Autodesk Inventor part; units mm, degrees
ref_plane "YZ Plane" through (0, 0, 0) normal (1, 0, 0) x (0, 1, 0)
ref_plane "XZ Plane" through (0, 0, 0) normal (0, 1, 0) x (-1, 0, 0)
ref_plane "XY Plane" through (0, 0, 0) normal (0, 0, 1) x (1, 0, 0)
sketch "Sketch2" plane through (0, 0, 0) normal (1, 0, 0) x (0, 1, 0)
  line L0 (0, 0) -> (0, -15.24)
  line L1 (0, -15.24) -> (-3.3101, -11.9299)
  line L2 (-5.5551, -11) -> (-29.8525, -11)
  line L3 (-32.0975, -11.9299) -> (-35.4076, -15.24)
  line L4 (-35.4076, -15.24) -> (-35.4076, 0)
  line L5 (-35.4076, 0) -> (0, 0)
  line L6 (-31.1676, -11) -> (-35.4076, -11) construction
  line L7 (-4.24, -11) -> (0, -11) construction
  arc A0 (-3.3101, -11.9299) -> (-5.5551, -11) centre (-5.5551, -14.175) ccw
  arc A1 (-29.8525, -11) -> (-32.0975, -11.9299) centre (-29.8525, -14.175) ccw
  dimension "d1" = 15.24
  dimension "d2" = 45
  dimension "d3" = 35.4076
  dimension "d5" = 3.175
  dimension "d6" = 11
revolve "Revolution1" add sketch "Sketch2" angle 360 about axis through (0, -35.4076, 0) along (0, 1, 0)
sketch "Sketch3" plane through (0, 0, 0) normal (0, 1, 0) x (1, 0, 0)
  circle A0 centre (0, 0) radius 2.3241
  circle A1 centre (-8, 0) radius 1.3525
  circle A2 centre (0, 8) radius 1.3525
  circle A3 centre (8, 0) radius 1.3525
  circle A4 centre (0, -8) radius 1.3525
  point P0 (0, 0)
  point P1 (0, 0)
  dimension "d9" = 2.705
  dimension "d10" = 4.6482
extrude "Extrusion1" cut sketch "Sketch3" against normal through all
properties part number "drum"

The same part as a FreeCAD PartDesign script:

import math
import FreeCAD as App
import Part
import Sketcher

V = App.Vector
Q = App.Units.Quantity

doc = App.newDocument("Part")
body = doc.addObject("PartDesign::Body", "Body")

# Sketch on YZ plane
sketch1 = doc.addObject("Sketcher::SketchObject", "Sketch")
body.addObject(sketch1)
sketch1.AttachmentSupport = (doc.YZ_Plane, [""])
sketch1.MapMode = "FlatFace"
sketch1.addGeometry(Part.LineSegment(V(0, -15.2, 0), V(0, 0, 0)), False)
sketch1.addGeometry(Part.LineSegment(V(0, 0, 0), V(-35.4, 0, 0)), False)
sketch1.addGeometry(Part.LineSegment(V(-35.4, 0, 0), V(-35.4, -15.2, 0)), False)
sketch1.addGeometry(Part.LineSegment(V(-35.4, -15.2, 0), V(-32.1, -11.9, 0)), False)
sketch1.addGeometry(Part.ArcOfCircle(Part.Circle(V(-29.9, -14.2, 0), V(0, 0, 1), 3.2), math.radians(90), math.radians(135)), False)
sketch1.addGeometry(Part.LineSegment(V(-29.9, -11, 0), V(-5.6, -11, 0)), False)
sketch1.addGeometry(Part.ArcOfCircle(Part.Circle(V(-5.6, -14.2, 0), V(0, 0, 1), 3.2), math.radians(45), math.radians(90)), False)
sketch1.addGeometry(Part.LineSegment(V(-3.3, -11.9, 0), V(0, -15.2, 0)), False)
sketch1.addConstraint(Sketcher.Constraint("Coincident", 0, 2, 1, 1))
sketch1.addConstraint(Sketcher.Constraint("Coincident", 1, 2, 2, 1))
sketch1.addConstraint(Sketcher.Constraint("Coincident", 2, 2, 3, 1))
sketch1.addConstraint(Sketcher.Constraint("Tangent", 3, 2, 4, 2))
sketch1.addConstraint(Sketcher.Constraint("Tangent", 4, 1, 5, 1))
sketch1.addConstraint(Sketcher.Constraint("Tangent", 5, 2, 6, 2))
sketch1.addConstraint(Sketcher.Constraint("Tangent", 6, 1, 7, 1))
sketch1.addConstraint(Sketcher.Constraint("Coincident", 7, 2, 0, 1))
sketch1.addConstraint(Sketcher.Constraint("Vertical", 0))
sketch1.addConstraint(Sketcher.Constraint("Horizontal", 1))
sketch1.addConstraint(Sketcher.Constraint("Vertical", 2))
sketch1.addConstraint(Sketcher.Constraint("Horizontal", 5))
sketch1.addConstraint(Sketcher.Constraint("Coincident", 0, 2, -1, 1))
sketch1.addConstraint(Sketcher.Constraint("Equal", 4, 6))
sketch1.addConstraint(Sketcher.Constraint("Perpendicular", 3, 7))
sketch1.addConstraint(Sketcher.Constraint("Horizontal", 3, 2, 6, 1))
sketch1.addConstraint(Sketcher.Constraint("Horizontal", 2, 2, 7, 2))
sketch1.addConstraint(Sketcher.Constraint("DistanceY", 0, 1, 0, 2, Q("0.6 in")))
sketch1.addConstraint(Sketcher.Constraint("Radius", 4, Q("0.125 in")))
sketch1.addConstraint(Sketcher.Constraint("DistanceX", 1, 2, 1, 1, Q("1.394 in")))
sketch1.addConstraint(Sketcher.Constraint("DistanceY", 4, 1, -1, 1, Q("11 mm")))
revolution = doc.addObject("PartDesign::Revolution", "Revolution")
body.addObject(revolution)
revolution.Profile = sketch1
revolution.ReferenceAxis = (sketch1, ["H_Axis"])
revolution.Angle = 360

# Sketch on XZ plane
sketch2 = doc.addObject("Sketcher::SketchObject", "Sketch001")
body.addObject(sketch2)
sketch2.AttachmentSupport = (doc.XZ_Plane, [""])
sketch2.MapMode = "FlatFace"
sketch2.addGeometry(Part.Circle(V(0, 0, 0), V(0, 0, 1), 2.3), False)
sketch2.addGeometry(Part.Circle(V(-8, 0, 0), V(0, 0, 1), 1.4), False)
sketch2.addGeometry(Part.Circle(V(0, -8, 0), V(0, 0, 1), 1.4), False)
sketch2.addGeometry(Part.Circle(V(8, 0, 0), V(0, 0, 1), 1.4), False)
sketch2.addGeometry(Part.Circle(V(0, 8, 0), V(0, 0, 1), 1.4), False)
sketch2.addConstraint(Sketcher.Constraint("Coincident", 0, 3, -1, 1))
sketch2.addConstraint(Sketcher.Constraint("Equal", 1, 2))
sketch2.addConstraint(Sketcher.Constraint("Equal", 2, 3))
sketch2.addConstraint(Sketcher.Constraint("Equal", 3, 4))
sketch2.addConstraint(Sketcher.Constraint("Symmetric", 1, 3, 3, 3, -1, 1))
sketch2.addConstraint(Sketcher.Constraint("Symmetric", 2, 3, 4, 3, -1, 1))
sketch2.addConstraint(Sketcher.Constraint("PointOnObject", 1, 3, -1))
sketch2.addConstraint(Sketcher.Constraint("PointOnObject", 2, 3, -2))
sketch2.addConstraint(Sketcher.Constraint("Diameter", 0, Q("0.183 in")))
sketch2.addConstraint(Sketcher.Constraint("Diameter", 1, Q("0.1065 in")))
sketch2.addConstraint(Sketcher.Constraint("DistanceX", 1, 3, -1, 1, Q("8 mm")))
sketch2.addConstraint(Sketcher.Constraint("DistanceY", 2, 3, -1, 1, Q("8 mm")))
pocket1 = doc.addObject("PartDesign::Pocket", "Pocket")
body.addObject(pocket1)
pocket1.Profile = sketch2
pocket1.Type = "ThroughAll"
pocket1.Reversed = True

doc.recompute()
